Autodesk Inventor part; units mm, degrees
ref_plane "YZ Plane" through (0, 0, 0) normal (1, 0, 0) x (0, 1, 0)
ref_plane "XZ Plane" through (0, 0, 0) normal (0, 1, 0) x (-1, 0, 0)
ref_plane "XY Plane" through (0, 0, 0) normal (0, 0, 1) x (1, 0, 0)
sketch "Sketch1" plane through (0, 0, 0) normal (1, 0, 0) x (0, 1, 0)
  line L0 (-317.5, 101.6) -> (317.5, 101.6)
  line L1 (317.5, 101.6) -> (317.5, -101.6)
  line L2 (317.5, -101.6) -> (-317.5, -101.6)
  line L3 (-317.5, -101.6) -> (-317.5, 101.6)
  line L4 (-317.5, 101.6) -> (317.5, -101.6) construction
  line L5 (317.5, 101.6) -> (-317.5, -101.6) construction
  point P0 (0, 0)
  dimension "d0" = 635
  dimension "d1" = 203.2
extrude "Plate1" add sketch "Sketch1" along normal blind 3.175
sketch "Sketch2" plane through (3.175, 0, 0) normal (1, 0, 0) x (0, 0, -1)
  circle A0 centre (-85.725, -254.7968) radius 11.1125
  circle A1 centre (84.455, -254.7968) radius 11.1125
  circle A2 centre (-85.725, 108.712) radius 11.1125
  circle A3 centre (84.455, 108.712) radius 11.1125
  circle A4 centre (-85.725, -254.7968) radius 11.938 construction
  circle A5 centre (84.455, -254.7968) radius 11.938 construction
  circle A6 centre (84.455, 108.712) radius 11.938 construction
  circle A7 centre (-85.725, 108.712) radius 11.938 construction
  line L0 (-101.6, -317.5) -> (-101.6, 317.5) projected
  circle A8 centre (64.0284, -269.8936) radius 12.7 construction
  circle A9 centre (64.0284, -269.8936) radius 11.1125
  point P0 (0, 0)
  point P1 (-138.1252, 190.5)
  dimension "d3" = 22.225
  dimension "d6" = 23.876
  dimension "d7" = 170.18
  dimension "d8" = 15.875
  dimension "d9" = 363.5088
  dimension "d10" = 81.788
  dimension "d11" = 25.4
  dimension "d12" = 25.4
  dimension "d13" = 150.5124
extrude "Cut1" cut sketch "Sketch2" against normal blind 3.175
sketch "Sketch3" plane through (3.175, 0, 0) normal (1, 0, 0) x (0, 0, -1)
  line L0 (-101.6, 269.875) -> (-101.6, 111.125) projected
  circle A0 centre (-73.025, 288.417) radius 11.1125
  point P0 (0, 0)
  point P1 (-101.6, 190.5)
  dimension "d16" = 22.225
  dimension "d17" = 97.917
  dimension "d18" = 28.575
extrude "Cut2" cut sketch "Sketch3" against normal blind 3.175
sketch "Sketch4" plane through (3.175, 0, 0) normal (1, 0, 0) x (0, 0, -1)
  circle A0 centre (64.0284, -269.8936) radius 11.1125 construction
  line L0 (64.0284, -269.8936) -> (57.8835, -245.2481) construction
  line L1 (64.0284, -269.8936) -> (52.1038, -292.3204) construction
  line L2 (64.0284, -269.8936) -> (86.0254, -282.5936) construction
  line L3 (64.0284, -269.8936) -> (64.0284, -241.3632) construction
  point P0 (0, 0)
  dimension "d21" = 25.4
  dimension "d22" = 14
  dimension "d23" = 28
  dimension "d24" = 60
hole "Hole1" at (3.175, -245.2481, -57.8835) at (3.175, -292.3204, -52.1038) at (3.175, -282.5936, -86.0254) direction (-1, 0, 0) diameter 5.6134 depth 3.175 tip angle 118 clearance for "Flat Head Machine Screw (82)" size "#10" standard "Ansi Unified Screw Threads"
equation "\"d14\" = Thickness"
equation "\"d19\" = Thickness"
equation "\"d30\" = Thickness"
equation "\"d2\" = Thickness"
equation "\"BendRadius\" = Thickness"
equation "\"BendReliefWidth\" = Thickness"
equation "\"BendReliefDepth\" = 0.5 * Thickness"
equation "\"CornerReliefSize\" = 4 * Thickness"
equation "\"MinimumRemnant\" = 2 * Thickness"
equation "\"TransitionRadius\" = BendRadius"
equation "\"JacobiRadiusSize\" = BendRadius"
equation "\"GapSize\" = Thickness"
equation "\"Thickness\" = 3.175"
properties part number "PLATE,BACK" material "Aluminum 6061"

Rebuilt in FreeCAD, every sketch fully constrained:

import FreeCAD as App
import Part
import Sketcher
from FreeCAD import Vector
Q = App.Units.Quantity


def add_polygon(sketch, points):
    """Adds a closed chain of lines whose ends are joined by coincident constraints."""
    first, n = sketch.GeometryCount, len(points)
    for a, b in zip(points, points[1:] + points[:1]):
        sketch.addGeometry(Part.LineSegment(App.Vector(*a, 0), App.Vector(*b, 0)), False)
    for i in range(n):
        sketch.addConstraint(Sketcher.Constraint("Coincident", first + i, 2, first + (i + 1) % n, 1))

doc = App.newDocument("Part")
body = doc.addObject("PartDesign::Body", "Body")

# Sketch on YZ plane
sketch1 = body.newObject("Sketcher::SketchObject", "Sketch")
sketch1.AttachmentSupport = (doc.getObject("YZ_Plane"), [""])
sketch1.MapMode = "FlatFace"
add_polygon(sketch1, [(317.5, 101.6), (-317.5, 101.6), (-317.5, -101.6), (317.5, -101.6)])  # lines 0-3
sketch1.addConstraint([
    Sketcher.Constraint("Horizontal", 0),
    Sketcher.Constraint("Vertical", 1),
    Sketcher.Constraint("Horizontal", 2),
    Sketcher.Constraint("Vertical", 3),
    Sketcher.Constraint("Symmetric", 0, 2, 2, 2, -1, 1),
    Sketcher.Constraint("DistanceX", 0, 2, 0, 1, Q("25 in")),
    Sketcher.Constraint("DistanceY", 1, 2, 1, 1, Q("8 in")),
])
pad1 = body.newObject("PartDesign::Pad", "Pad")
pad1.Profile = sketch1
pad1.Length = Q("0.125 in")

# Sketch on YZ plane
sketch2 = body.newObject("Sketcher::SketchObject", "Sketch001")
sketch2.AttachmentSupport = (doc.getObject("YZ_Plane"), [""])
sketch2.MapMode = "FlatFace"
sketch2.AttachmentOffset = App.Placement(Vector(0, 0, 0.125 * 25.4), App.Rotation())
sketch2.addGeometry([
    Part.Circle(Vector(-254.7968, 85.725, 0), Vector(0, 0, 1), 11.1125),  # 0
    Part.Circle(Vector(-254.7968, -84.455, 0), Vector(0, 0, 1), 11.1125),  # 1
    Part.Circle(Vector(108.712, 85.725, 0), Vector(0, 0, 1), 11.1125),  # 2
    Part.Circle(Vector(108.712, -84.455, 0), Vector(0, 0, 1), 11.1125),  # 3
    Part.Circle(Vector(-269.8936, -64.0284, 0), Vector(0, 0, 1), 11.1125),  # 4
], False)
sketch2.addConstraint([
    Sketcher.Constraint("Equal", 0, 1),
    Sketcher.Constraint("Equal", 1, 2),
    Sketcher.Constraint("Equal", 2, 3),
    Sketcher.Constraint("Equal", 3, 4),
    Sketcher.Constraint("Horizontal", 0, 3, 2, 3),
    Sketcher.Constraint("Horizontal", 1, 3, 3, 3),
    Sketcher.Constraint("Vertical", 0, 3, 1, 3),
    Sketcher.Constraint("Vertical", 2, 3, 3, 3),
    Sketcher.Constraint("Diameter", 0, Q("0.875 in")),
    Sketcher.Constraint("DistanceY", 1, 3, 0, 3, Q("6.7 in")),
    Sketcher.Constraint("DistanceX", -1, 1, 2, 3, Q("4.28 in")),
    Sketcher.Constraint("DistanceX", 0, 3, 2, 3, Q("363.5088 mm")),
    Sketcher.Constraint("DistanceY", -1, 1, 0, 3, Q("3.375 in")),
    Sketcher.Constraint("DistanceY", 4, 3, -1, 1, Q("2.5208 in")),
    Sketcher.Constraint("DistanceX", 4, 3, -1, 1, Q("269.8936 mm")),
])
pocket1 = body.newObject("PartDesign::Pocket", "Pocket")
pocket1.Profile = sketch2
pocket1.Length = Q("0.125 in")

# Sketch on YZ plane
sketch3 = body.newObject("Sketcher::SketchObject", "Sketch002")
sketch3.AttachmentSupport = (doc.getObject("YZ_Plane"), [""])
sketch3.MapMode = "FlatFace"
sketch3.AttachmentOffset = App.Placement(Vector(0, 0, 0.125 * 25.4), App.Rotation())
sketch3.addGeometry(Part.Circle(Vector(288.417, 73.025, 0), Vector(0, 0, 1), 11.1125), False)
sketch3.addConstraint([
    Sketcher.Constraint("Diameter", 0, Q("0.875 in")),
    Sketcher.Constraint("DistanceX", -1, 1, 0, 3, Q("11.355 in")),
    Sketcher.Constraint("DistanceY", -1, 1, 0, 3, Q("2.875 in")),
])
pocket2 = body.newObject("PartDesign::Pocket", "Pocket001")
pocket2.Profile = sketch3
pocket2.Length = Q("0.125 in")

# Sketch on YZ plane
sketch4 = body.newObject("Sketcher::SketchObject", "Sketch003")
sketch4.AttachmentSupport = (doc.getObject("YZ_Plane"), [""])
sketch4.MapMode = "FlatFace"
sketch4.AttachmentOffset = App.Placement(Vector(0, 0, 0.125 * 25.4), App.Rotation())
sketch4.addGeometry([
    Part.Circle(Vector(-245.2481, -57.8835, 0), Vector(0, 0, 1), 2.8067),
    Part.Circle(Vector(-292.3204, -52.1038, 0), Vector(0, 0, 1), 2.8067),
    Part.Circle(Vector(-282.5936, -86.0254, 0), Vector(0, 0, 1), 2.8067),
], False)
sketch4.addConstraint([
    Sketcher.Constraint("Equal", 0, 1),
    Sketcher.Constraint("Equal", 1, 2),
    Sketcher.Constraint("Diameter", 0, Q("0.221 in")),
    Sketcher.Constraint("DistanceY", 2, 3, 1, 3, Q("1.3355 in")),
    Sketcher.Constraint("DistanceX", 2, 3, 0, 3, Q("1.4703 in")),
    Sketcher.Constraint("DistanceX", 0, 3, -1, 1, Q("245.248 mm")),
    Sketcher.Constraint("DistanceY", 0, 3, -1, 1, Q("57.8835 mm")),
    Sketcher.Constraint("DistanceX", 1, 3, -1, 1, Q("292.3204 mm")),
    Sketcher.Constraint("DistanceY", 1, 3, -1, 1, Q("52.1038 mm")),
])
doc.recompute()
hole = body.newObject("PartDesign::Hole", "Hole")
hole.Profile = sketch4
hole.ThreadType = "None"
hole.Diameter = Q("0.221 in")
hole.DepthType = "Dimension"
hole.Depth = Q("0.125 in")
hole.DrillPoint = "Angled"
hole.DrillPointAngle = 118

doc.recompute()
